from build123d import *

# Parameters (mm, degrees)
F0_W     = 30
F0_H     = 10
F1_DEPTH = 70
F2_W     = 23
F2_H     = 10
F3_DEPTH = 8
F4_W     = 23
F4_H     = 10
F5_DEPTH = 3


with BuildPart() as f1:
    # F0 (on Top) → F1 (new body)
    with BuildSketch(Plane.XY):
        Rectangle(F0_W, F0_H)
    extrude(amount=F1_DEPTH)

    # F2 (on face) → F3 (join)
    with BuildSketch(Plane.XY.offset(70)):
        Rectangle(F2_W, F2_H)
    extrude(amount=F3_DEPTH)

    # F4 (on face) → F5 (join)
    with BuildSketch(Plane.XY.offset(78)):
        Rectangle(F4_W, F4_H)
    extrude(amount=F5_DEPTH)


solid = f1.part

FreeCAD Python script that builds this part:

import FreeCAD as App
import Part
import Sketcher

V = App.Vector


def add_polygon(sketch, points):
    """Adds a closed chain of lines whose ends are joined by coincident constraints."""
    first, n = sketch.GeometryCount, len(points)
    for a, b in zip(points, points[1:] + points[:1]):
        sketch.addGeometry(Part.LineSegment(App.Vector(*a, 0), App.Vector(*b, 0)), False)
    for i in range(n):
        sketch.addConstraint(Sketcher.Constraint("Coincident", first + i, 2, first + (i + 1) % n, 1))

doc = App.newDocument("Part")
params = doc.addObject("Spreadsheet::Sheet", "Params")
for row, (alias, value) in enumerate([
    ("sketch1_width", "30 mm"),
    ("sketch1_height", "10 mm"),
    ("pad1_length", "70 mm"),
    ("sketch2_width", "23 mm"),
    ("sketch2_height", "10 mm"),
    ("pad2_length", "8 mm"),
    ("sketch3_width", "23 mm"),
    ("sketch3_height", "10 mm"),
    ("pad3_length", "3 mm"),
], start=1):
    params.set(f"A{row}", alias)
    params.set(f"B{row}", "=" + value)
    params.setAlias(f"B{row}", alias)

body = doc.addObject("PartDesign::Body", "Body")

# Sketch on XY plane
sketch1 = doc.addObject("Sketcher::SketchObject", "Sketch")
body.addObject(sketch1)
sketch1.AttachmentSupport = (doc.XY_Plane, [""])
sketch1.MapMode = "FlatFace"
add_polygon(sketch1, [(-15, 5), (-15, -5), (15, -5), (15, 5)])  # lines 0-3
sketch1.addConstraint([
    Sketcher.Constraint("Vertical", 0),
    Sketcher.Constraint("Horizontal", 1),
    Sketcher.Constraint("Vertical", 2),
    Sketcher.Constraint("Horizontal", 3),
    Sketcher.Constraint("Symmetric", 0, 2, 2, 2, -1, 1),
    Sketcher.Constraint("DistanceX", 1, 1, 1, 2, 30.0),
    Sketcher.Constraint("DistanceY", 0, 2, 0, 1, 10.0),
])
sketch1.setExpression("Constraints[9]", "Params.sketch1_width")
sketch1.setExpression("Constraints[10]", "Params.sketch1_height")
pad1 = doc.addObject("PartDesign::Pad", "Pad")
body.addObject(pad1)
pad1.Profile = sketch1
pad1.setExpression("Length", "Params.pad1_length")

# Sketch on XY plane
sketch2 = doc.addObject("Sketcher::SketchObject", "Sketch001")
body.addObject(sketch2)
sketch2.AttachmentSupport = (doc.XY_Plane, [""])
sketch2.MapMode = "FlatFace"
sketch2.AttachmentOffset = App.Placement(V(0, 0, 70), App.Rotation())
add_polygon(sketch2, [(-12, 5), (-12, -5), (12, -5), (12, 5)])  # lines 0-3
sketch2.addConstraint([
    Sketcher.Constraint("Vertical", 0),
    Sketcher.Constraint("Horizontal", 1),
    Sketcher.Constraint("Vertical", 2),
    Sketcher.Constraint("Horizontal", 3),
    Sketcher.Constraint("Symmetric", 0, 2, 2, 2, -1, 1),
    Sketcher.Constraint("DistanceX", 1, 1, 1, 2, 23.0),
    Sketcher.Constraint("DistanceY", 0, 2, 0, 1, 10.0),
])
sketch2.setExpression("Constraints[9]", "Params.sketch2_width")
sketch2.setExpression("Constraints[10]", "Params.sketch2_height")
pad2 = doc.addObject("PartDesign::Pad", "Pad001")
body.addObject(pad2)
pad2.Profile = sketch2
pad2.setExpression("Length", "Params.pad2_length")

# Sketch on XY plane
sketch3 = doc.addObject("Sketcher::SketchObject", "Sketch002")
body.addObject(sketch3)
sketch3.AttachmentSupport = (doc.XY_Plane, [""])
sketch3.MapMode = "FlatFace"
sketch3.AttachmentOffset = App.Placement(V(0, 0, 78), App.Rotation())
add_polygon(sketch3, [(-12, 5), (-12, -5), (12, -5), (12, 5)])  # lines 0-3
sketch3.addConstraint([
    Sketcher.Constraint("Vertical", 0),
    Sketcher.Constraint("Horizontal", 1),
    Sketcher.Constraint("Vertical", 2),
    Sketcher.Constraint("Horizontal", 3),
    Sketcher.Constraint("Symmetric", 0, 2, 2, 2, -1, 1),
    Sketcher.Constraint("DistanceX", 1, 1, 1, 2, 23.0),
    Sketcher.Constraint("DistanceY", 0, 2, 0, 1, 10.0),
])
sketch3.setExpression("Constraints[9]", "Params.sketch3_width")
sketch3.setExpression("Constraints[10]", "Params.sketch3_height")
pad3 = doc.addObject("PartDesign::Pad", "Pad002")
body.addObject(pad3)
pad3.Profile = sketch3
pad3.setExpression("Length", "Params.pad3_length")

doc.recompute()
